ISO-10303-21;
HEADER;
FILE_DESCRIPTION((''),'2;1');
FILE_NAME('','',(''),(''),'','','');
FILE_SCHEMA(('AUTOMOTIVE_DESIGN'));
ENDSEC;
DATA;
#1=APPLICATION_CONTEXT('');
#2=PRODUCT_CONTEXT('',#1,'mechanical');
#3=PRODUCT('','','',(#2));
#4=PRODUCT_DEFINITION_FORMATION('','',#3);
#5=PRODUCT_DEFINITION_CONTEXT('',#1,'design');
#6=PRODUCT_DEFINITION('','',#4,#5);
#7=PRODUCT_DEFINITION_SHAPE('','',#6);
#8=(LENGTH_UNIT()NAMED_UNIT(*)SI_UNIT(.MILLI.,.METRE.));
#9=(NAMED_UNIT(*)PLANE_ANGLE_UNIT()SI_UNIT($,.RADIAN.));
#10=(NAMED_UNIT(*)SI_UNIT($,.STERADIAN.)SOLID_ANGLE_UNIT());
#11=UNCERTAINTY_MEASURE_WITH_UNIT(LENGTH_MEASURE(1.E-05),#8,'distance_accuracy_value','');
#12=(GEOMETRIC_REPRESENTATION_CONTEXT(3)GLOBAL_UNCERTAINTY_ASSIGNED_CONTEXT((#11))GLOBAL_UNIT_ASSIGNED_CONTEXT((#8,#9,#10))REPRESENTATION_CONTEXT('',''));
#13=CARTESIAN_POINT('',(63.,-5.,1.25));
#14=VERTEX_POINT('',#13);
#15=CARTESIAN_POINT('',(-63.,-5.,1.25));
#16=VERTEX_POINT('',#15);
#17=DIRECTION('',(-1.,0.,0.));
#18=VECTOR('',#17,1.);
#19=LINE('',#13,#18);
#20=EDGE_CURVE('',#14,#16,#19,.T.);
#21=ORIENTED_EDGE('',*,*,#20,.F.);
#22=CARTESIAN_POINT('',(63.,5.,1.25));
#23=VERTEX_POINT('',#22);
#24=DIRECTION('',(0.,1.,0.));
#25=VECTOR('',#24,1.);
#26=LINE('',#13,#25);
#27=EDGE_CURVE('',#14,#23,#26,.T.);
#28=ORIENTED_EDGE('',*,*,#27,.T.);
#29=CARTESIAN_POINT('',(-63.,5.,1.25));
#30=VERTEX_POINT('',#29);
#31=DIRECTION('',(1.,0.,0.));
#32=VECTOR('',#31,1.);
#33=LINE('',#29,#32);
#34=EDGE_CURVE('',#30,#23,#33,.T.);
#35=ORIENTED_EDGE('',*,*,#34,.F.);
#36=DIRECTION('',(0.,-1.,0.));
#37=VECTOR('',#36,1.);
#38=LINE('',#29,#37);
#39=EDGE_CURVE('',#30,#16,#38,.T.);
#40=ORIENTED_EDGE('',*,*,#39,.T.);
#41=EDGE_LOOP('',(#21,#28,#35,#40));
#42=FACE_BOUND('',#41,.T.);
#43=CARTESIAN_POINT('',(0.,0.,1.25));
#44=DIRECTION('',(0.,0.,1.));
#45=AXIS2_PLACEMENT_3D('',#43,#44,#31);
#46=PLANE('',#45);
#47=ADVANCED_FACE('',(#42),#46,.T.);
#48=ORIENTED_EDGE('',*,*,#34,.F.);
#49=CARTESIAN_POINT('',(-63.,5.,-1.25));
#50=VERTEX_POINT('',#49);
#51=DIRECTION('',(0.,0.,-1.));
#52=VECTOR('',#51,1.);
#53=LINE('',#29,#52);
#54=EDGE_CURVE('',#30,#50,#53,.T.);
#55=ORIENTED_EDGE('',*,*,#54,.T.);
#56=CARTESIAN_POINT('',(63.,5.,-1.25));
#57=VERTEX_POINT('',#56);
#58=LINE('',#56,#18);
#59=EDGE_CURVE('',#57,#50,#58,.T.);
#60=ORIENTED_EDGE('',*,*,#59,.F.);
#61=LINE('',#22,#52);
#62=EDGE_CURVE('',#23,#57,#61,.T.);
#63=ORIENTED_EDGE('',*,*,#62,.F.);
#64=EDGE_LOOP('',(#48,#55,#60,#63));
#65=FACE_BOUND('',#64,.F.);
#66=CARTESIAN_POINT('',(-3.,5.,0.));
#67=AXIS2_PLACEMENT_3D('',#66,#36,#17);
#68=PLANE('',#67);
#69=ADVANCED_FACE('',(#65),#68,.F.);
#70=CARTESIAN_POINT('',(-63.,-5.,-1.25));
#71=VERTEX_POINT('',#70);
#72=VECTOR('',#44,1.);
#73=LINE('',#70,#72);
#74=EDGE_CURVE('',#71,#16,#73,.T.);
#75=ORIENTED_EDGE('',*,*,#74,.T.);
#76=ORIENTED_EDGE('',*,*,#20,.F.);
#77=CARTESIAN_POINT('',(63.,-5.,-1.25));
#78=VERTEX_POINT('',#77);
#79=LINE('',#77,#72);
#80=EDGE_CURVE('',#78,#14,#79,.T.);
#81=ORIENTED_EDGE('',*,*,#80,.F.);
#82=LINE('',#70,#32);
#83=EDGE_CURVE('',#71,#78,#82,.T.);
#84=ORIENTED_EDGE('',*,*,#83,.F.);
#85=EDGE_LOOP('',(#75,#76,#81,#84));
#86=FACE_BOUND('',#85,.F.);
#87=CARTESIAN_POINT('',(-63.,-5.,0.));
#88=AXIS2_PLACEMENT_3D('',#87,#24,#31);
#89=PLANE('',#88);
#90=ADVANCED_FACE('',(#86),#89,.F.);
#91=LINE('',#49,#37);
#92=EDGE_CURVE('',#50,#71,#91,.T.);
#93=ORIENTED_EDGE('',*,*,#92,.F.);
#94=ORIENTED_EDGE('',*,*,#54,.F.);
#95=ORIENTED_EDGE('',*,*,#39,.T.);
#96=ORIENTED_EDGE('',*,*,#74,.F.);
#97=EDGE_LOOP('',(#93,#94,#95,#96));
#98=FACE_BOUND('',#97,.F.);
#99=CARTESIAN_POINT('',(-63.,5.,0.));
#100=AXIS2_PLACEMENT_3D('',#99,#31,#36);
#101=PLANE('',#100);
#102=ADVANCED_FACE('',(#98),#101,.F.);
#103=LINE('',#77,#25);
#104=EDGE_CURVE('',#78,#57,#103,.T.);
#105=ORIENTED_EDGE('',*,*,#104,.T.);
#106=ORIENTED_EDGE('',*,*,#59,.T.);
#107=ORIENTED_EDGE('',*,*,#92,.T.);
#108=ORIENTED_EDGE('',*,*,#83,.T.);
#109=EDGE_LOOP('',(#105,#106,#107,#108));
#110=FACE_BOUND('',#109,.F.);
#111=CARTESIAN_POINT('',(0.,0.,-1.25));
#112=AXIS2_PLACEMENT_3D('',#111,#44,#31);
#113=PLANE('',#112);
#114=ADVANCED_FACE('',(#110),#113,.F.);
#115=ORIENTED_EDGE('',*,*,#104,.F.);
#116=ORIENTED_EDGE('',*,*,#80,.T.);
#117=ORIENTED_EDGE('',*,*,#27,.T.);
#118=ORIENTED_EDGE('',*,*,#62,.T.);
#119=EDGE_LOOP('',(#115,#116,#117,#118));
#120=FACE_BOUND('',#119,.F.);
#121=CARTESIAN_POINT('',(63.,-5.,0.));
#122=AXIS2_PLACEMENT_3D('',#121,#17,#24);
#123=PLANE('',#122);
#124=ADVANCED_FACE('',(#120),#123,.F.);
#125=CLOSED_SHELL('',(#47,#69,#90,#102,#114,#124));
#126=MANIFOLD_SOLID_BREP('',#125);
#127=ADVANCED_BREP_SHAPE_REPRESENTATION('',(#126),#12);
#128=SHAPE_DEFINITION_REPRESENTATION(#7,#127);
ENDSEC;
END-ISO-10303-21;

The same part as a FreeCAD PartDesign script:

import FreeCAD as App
import Part
import Sketcher
from FreeCAD import Vector


def add_polygon(sketch, points):
    """Adds a closed chain of lines whose ends are joined by coincident constraints."""
    first, n = sketch.GeometryCount, len(points)
    for a, b in zip(points, points[1:] + points[:1]):
        sketch.addGeometry(Part.LineSegment(App.Vector(*a, 0), App.Vector(*b, 0)), False)
    for i in range(n):
        sketch.addConstraint(Sketcher.Constraint("Coincident", first + i, 2, first + (i + 1) % n, 1))

doc = App.newDocument("Part")
body = doc.addObject("PartDesign::Body", "Body")

sketch1 = body.newObject("Sketcher::SketchObject", "Sketch")
sketch1.AttachmentSupport = (doc.getObject("XY_Plane"), [""])
sketch1.MapMode = "FlatFace"
add_polygon(sketch1, [(-63, 5), (-63, -5), (63, -5), (63, 5)])
sketch1.addConstraint(Sketcher.Constraint("Vertical", 0))
sketch1.addConstraint(Sketcher.Constraint("Horizontal", 1))
sketch1.addConstraint(Sketcher.Constraint("Vertical", 2))
sketch1.addConstraint(Sketcher.Constraint("Horizontal", 3))
sketch1.addConstraint(Sketcher.Constraint("Symmetric", 0, 2, 2, 2, -1, 1))
sketch1.addConstraint(Sketcher.Constraint("DistanceX", 1, 1, 1, 2, 126.0))
sketch1.addConstraint(Sketcher.Constraint("DistanceY", 0, 2, 0, 1, 10.0))
pad1 = body.newObject("PartDesign::Pad", "Pad")
pad1.Profile = sketch1
pad1.Length = 2.5
pad1.Midplane = True

doc.recompute()
